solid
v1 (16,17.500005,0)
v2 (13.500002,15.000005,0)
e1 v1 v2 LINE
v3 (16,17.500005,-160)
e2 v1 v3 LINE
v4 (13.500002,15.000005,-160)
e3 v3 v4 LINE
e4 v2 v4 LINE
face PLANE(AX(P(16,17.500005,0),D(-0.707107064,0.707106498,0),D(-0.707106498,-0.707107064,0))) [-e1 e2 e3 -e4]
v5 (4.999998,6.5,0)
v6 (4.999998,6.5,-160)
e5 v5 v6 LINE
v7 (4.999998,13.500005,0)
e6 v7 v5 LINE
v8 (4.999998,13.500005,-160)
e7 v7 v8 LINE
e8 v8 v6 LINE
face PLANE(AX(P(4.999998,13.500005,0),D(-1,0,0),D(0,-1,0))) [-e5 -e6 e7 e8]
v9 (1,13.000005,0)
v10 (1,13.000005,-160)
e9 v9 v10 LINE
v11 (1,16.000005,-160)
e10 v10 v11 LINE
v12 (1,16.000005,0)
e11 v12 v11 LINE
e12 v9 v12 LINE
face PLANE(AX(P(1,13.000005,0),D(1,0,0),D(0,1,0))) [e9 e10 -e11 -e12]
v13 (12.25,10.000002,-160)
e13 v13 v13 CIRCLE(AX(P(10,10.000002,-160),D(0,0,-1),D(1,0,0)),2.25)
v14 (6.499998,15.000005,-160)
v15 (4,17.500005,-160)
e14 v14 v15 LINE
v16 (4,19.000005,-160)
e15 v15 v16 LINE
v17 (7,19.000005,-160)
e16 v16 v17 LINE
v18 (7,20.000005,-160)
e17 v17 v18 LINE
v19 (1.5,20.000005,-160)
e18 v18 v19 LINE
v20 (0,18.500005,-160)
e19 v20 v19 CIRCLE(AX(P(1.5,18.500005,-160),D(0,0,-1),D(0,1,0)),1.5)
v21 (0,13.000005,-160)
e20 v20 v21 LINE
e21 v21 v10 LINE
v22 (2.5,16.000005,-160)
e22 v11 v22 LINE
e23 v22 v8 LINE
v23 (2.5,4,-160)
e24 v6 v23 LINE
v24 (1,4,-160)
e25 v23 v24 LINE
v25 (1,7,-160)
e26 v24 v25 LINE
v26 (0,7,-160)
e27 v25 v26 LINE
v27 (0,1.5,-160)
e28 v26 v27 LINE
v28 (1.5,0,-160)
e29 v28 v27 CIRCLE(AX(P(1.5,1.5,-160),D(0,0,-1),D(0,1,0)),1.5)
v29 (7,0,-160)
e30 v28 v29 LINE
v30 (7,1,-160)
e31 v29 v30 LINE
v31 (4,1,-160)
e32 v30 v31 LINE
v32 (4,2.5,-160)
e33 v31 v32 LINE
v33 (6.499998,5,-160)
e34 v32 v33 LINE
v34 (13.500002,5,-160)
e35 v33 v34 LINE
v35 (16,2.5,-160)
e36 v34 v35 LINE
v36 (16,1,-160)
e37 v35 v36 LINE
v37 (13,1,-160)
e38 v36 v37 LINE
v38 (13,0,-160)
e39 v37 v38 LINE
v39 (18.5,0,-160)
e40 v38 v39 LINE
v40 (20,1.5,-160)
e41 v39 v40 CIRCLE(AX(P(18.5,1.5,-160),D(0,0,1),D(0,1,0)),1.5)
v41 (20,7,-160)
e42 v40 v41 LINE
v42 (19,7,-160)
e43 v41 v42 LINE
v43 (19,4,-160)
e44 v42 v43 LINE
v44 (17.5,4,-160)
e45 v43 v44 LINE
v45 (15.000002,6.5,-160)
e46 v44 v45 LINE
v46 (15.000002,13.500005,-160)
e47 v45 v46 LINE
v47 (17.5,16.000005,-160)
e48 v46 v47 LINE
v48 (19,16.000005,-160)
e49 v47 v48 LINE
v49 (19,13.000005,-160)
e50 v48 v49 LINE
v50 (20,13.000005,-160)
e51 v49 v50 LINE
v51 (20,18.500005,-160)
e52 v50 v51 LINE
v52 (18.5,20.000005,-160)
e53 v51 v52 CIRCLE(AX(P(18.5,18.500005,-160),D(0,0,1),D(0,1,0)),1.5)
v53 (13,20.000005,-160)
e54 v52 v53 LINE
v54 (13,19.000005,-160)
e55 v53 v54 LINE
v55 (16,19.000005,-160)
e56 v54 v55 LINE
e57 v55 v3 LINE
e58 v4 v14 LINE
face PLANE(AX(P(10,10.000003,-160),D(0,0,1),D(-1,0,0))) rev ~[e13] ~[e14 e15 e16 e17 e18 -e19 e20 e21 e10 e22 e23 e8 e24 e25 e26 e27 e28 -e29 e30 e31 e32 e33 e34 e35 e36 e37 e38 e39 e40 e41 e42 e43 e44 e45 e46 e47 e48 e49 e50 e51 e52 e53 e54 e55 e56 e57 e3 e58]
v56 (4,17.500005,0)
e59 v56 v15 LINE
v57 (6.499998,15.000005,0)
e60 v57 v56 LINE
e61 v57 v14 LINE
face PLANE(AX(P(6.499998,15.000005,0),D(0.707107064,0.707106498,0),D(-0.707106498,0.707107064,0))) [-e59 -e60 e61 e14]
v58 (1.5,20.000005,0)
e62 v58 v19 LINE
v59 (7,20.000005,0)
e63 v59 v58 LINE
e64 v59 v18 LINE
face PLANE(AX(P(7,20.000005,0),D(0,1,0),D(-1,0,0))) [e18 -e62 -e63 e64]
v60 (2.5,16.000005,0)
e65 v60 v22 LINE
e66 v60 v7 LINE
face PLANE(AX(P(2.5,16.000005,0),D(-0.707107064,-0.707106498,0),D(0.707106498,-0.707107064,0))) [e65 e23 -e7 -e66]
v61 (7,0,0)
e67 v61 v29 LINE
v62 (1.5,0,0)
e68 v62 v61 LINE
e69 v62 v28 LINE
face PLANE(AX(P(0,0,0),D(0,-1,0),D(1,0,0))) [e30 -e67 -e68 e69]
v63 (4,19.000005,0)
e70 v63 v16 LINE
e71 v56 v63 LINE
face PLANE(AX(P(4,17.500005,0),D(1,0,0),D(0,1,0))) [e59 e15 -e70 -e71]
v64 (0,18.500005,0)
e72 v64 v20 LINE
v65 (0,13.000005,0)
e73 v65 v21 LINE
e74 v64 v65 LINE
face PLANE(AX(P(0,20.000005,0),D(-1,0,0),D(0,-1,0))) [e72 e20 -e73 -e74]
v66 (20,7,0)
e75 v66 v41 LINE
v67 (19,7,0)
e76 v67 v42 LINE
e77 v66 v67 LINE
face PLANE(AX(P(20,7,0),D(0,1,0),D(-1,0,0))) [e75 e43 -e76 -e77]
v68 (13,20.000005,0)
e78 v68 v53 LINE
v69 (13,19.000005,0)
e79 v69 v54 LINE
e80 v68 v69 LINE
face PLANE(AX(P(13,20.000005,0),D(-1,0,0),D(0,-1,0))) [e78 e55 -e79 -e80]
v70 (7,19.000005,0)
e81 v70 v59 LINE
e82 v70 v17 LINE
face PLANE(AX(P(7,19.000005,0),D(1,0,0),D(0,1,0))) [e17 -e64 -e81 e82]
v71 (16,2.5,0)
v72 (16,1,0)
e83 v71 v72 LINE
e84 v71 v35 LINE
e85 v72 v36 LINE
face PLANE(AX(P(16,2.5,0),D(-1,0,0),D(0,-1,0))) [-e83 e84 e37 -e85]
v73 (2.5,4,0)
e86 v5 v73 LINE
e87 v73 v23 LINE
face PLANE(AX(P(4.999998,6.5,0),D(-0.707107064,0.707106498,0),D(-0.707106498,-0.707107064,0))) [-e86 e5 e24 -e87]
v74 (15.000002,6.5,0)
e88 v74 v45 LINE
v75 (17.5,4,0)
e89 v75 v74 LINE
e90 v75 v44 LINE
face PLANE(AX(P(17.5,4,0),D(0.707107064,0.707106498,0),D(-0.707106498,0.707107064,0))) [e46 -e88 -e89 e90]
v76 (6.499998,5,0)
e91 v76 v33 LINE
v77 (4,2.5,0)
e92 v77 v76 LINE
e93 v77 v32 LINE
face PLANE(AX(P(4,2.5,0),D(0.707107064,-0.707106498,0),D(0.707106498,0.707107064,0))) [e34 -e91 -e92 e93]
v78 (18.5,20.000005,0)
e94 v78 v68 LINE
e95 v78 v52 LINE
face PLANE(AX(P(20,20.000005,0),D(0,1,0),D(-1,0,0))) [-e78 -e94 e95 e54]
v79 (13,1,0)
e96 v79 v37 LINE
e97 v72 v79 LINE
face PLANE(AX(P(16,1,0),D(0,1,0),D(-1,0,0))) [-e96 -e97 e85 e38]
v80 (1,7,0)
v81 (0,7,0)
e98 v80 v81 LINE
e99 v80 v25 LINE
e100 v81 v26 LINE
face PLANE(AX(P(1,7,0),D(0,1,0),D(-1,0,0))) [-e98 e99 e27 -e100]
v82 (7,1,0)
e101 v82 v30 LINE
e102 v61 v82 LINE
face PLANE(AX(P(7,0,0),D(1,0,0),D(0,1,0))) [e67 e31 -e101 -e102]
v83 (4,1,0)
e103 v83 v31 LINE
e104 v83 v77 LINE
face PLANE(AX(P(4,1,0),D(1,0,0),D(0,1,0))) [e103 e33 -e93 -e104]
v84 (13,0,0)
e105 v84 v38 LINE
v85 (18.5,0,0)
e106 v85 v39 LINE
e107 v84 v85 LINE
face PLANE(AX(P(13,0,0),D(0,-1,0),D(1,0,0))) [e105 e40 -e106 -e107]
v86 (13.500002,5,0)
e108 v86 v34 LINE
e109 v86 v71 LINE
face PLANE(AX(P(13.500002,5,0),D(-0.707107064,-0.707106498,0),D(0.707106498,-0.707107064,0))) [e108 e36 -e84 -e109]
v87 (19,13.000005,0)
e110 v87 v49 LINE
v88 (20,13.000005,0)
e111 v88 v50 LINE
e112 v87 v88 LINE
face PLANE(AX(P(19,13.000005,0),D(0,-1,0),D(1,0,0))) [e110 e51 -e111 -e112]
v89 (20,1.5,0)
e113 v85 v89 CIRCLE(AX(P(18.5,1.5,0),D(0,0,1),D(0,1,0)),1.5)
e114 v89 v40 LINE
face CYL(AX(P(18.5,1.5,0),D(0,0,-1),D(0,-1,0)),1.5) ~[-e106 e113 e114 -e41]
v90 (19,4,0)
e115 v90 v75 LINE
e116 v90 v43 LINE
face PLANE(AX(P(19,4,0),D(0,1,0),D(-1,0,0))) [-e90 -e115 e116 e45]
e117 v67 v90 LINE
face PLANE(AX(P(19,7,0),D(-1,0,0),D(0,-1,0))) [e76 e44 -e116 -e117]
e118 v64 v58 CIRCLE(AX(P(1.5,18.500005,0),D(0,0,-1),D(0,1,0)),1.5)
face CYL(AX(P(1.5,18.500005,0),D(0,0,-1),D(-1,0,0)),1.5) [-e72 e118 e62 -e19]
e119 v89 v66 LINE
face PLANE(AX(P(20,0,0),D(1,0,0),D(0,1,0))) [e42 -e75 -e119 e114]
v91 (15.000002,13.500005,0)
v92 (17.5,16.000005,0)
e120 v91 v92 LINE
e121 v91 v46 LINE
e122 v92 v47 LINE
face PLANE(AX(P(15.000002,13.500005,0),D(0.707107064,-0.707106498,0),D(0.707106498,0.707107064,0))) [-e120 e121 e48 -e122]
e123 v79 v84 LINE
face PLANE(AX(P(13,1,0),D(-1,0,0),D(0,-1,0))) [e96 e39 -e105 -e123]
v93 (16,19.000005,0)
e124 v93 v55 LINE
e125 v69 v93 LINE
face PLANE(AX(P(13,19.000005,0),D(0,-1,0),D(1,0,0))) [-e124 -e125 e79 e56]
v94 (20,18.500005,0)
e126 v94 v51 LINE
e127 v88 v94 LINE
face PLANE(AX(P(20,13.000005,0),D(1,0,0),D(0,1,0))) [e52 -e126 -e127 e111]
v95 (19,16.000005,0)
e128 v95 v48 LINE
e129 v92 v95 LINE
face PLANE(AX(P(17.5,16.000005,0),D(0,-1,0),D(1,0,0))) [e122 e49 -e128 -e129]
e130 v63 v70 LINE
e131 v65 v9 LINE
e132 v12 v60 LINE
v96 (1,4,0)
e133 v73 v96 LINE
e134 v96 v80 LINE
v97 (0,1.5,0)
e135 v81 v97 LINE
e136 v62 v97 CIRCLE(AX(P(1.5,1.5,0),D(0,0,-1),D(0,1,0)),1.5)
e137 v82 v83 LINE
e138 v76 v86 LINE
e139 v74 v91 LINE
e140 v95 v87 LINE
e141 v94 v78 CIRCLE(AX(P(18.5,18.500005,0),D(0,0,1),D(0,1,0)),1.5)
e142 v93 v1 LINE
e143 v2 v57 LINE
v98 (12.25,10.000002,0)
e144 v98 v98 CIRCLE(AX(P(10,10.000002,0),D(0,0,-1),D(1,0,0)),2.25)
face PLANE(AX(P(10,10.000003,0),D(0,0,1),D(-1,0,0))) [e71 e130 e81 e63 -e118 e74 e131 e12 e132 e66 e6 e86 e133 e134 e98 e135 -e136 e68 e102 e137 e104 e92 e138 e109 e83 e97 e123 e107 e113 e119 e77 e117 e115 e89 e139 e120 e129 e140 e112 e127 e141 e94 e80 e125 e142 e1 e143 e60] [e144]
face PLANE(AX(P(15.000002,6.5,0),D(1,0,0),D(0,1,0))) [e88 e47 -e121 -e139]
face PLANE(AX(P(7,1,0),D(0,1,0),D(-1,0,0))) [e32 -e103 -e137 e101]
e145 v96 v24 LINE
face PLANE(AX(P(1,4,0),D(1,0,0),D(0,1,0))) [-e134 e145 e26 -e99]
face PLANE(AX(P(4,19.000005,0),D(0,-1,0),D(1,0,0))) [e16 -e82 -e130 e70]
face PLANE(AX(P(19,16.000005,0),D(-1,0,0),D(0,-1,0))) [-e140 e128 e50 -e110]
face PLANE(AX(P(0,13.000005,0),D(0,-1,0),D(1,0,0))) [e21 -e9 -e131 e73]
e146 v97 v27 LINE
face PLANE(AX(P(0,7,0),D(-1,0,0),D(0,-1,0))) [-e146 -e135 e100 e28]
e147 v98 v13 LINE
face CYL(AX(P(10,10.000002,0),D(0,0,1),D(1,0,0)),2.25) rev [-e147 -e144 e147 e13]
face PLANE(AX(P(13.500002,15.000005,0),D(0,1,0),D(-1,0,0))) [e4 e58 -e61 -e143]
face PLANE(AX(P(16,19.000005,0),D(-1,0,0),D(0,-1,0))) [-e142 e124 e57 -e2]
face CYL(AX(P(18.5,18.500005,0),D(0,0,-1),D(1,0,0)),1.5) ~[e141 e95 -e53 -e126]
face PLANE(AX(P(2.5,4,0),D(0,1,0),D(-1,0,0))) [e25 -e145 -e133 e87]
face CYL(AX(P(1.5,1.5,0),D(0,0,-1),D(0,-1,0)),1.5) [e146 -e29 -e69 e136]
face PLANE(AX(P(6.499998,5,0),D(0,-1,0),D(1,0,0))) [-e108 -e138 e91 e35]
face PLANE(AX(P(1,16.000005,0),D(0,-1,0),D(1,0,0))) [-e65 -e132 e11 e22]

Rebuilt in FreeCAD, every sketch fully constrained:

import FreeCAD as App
import Part
import Sketcher

V = App.Vector


def edges_at(feature, points):
    """Names of the edges that pass closest to the given points."""
    edges = feature.Shape.Edges
    near = lambda p: min(range(len(edges)), key=lambda i: edges[i].distToShape(Part.Vertex(*p))[0])
    return sorted({f"Edge{near(p) + 1}" for p in points})


def add_polygon(sketch, points):
    """Adds a closed chain of lines whose ends are joined by coincident constraints."""
    first, n = sketch.GeometryCount, len(points)
    for a, b in zip(points, points[1:] + points[:1]):
        sketch.addGeometry(Part.LineSegment(App.Vector(*a, 0), App.Vector(*b, 0)), False)
    for i in range(n):
        sketch.addConstraint(Sketcher.Constraint("Coincident", first + i, 2, first + (i + 1) % n, 1))

doc = App.newDocument("Part")
body = doc.addObject("PartDesign::Body", "Body")

# Sketch on XY plane
sketch1 = body.newObject("Sketcher::SketchObject", "Sketch")
sketch1.AttachmentSupport = (doc.getObject("XY_Plane"), [""])
sketch1.MapMode = "FlatFace"
add_polygon(sketch1, [(7, 1), (7, 0), (0, 0), (0, 7), (1, 7), (1, 4), (2.5, 4), (4.999998, 6.5), (4.999998, 13.500005), (2.5, 16.000005), (1, 16.000005), (1, 13.000005), (0, 13.000005), (0, 20.000005), (7, 20.000005), (7, 19.000005), (4, 19.000005), (4, 17.500005), (6.499998, 15.000005), (13.500002, 15.000005), (16, 17.500005), (16, 19.000005), (13, 19.000005), (13, 20.000005), (20, 20.000005), (20, 13.000005), (19, 13.000005), (19, 16.000005), (17.5, 16.000005), (15.000002, 13.500005), (15.000002, 6.5), (17.5, 4), (19, 4), (19, 7), (20, 7), (20, 0), (13, 0), (13, 1), (16, 1), (16, 2.5), (13.500002, 5), (6.499998, 5), (4, 2.5), (4, 1)])  # lines 0-43
sketch1.addGeometry(Part.Circle(V(10, 10.000002, 0), V(0, 0, 1), 2.25), False)  # 44
sketch1.addConstraint([
    Sketcher.Constraint("Vertical", 0),
    Sketcher.Constraint("Horizontal", 1),
    Sketcher.Constraint("Vertical", 2),
    Sketcher.Constraint("Horizontal", 3),
    Sketcher.Constraint("Vertical", 4),
    Sketcher.Constraint("Horizontal", 5),
    Sketcher.Constraint("Vertical", 7),
    Sketcher.Constraint("Horizontal", 9),
    Sketcher.Constraint("Vertical", 10),
    Sketcher.Constraint("Horizontal", 11),
    Sketcher.Constraint("Vertical", 12),
    Sketcher.Constraint("Horizontal", 13),
    Sketcher.Constraint("Vertical", 14),
    Sketcher.Constraint("Horizontal", 15),
    Sketcher.Constraint("Vertical", 16),
    Sketcher.Constraint("Horizontal", 18),
    Sketcher.Constraint("Vertical", 20),
    Sketcher.Constraint("Horizontal", 21),
    Sketcher.Constraint("Vertical", 22),
    Sketcher.Constraint("Horizontal", 23),
    Sketcher.Constraint("Vertical", 24),
    Sketcher.Constraint("Horizontal", 25),
    Sketcher.Constraint("Vertical", 26),
    Sketcher.Constraint("Horizontal", 27),
    Sketcher.Constraint("Vertical", 29),
    Sketcher.Constraint("Horizontal", 31),
    Sketcher.Constraint("Vertical", 32),
    Sketcher.Constraint("Horizontal", 33),
    Sketcher.Constraint("Vertical", 34),
    Sketcher.Constraint("Horizontal", 35),
    Sketcher.Constraint("Vertical", 36),
    Sketcher.Constraint("Horizontal", 37),
    Sketcher.Constraint("Vertical", 38),
    Sketcher.Constraint("Horizontal", 40),
    Sketcher.Constraint("Vertical", 42),
    Sketcher.Constraint("Horizontal", 43),
    Sketcher.Constraint("Coincident", 1, 2, -1, 1),
    Sketcher.Constraint("PointOnObject", 11, 2, -2),
    Sketcher.Constraint("PointOnObject", 34, 2, -1),
    Sketcher.Constraint("Perpendicular", 6, 8),
    Sketcher.Constraint("Parallel", 8, 17),
    Sketcher.Constraint("Perpendicular", 17, 19),
    Sketcher.Constraint("Parallel", 19, 28),
    Sketcher.Constraint("Perpendicular", 28, 30),
    Sketcher.Constraint("Parallel", 30, 39),
    Sketcher.Constraint("Perpendicular", 39, 41),
    Sketcher.Constraint("Horizontal", 16, 2, 19, 2),
    Sketcher.Constraint("Horizontal", 15, 2, 20, 2),
    Sketcher.Constraint("Horizontal", 13, 2, 22, 2),
    Sketcher.Constraint("Horizontal", 11, 2, 24, 2),
    Sketcher.Constraint("Horizontal", 9, 2, 26, 2),
    Sketcher.Constraint("Horizontal", 7, 2, 28, 2),
    Sketcher.Constraint("Horizontal", 6, 2, 29, 2),
    Sketcher.Constraint("Horizontal", 5, 2, 30, 2),
    Sketcher.Constraint("Horizontal", 3, 2, 32, 2),
    Sketcher.Constraint("Horizontal", 38, 2, 41, 2),
    Sketcher.Constraint("Horizontal", 37, 2, 42, 2),
    Sketcher.Constraint("Vertical", 5, 2, 8, 2),
    Sketcher.Constraint("Vertical", 4, 2, 9, 2),
    Sketcher.Constraint("Vertical", 0, 2, 13, 2),
    Sketcher.Constraint("Vertical", 27, 2, 30, 2),
    Sketcher.Constraint("Vertical", 26, 2, 31, 2),
    Sketcher.Constraint("Vertical", 24, 2, 33, 2),
    Sketcher.Constraint("Vertical", 22, 2, 35, 2),
    Sketcher.Constraint("Vertical", 20, 2, 37, 2),
    Sketcher.Constraint("Vertical", 18, 2, 39, 2),
    Sketcher.Constraint("Vertical", 17, 2, 40, 2),
    Sketcher.Constraint("Equal", 15, 21),
    Sketcher.Constraint("Equal", 13, 23),
    Sketcher.Constraint("Equal", 11, 25),
    Sketcher.Constraint("Equal", 9, 27),
    Sketcher.Constraint("Equal", 33, 0),
    Sketcher.Constraint("Equal", 35, 2),
    Sketcher.Constraint("Equal", 43, 4),
    Sketcher.Constraint("Equal", 40, 7),
    Sketcher.Constraint("Equal", 4, 10),
    Sketcher.Constraint("Equal", 2, 12),
    Sketcher.Constraint("Equal", 0, 14),
    Sketcher.Constraint("Equal", 31, 16),
    Sketcher.Constraint("Equal", 20, 38),
    Sketcher.Constraint("Equal", 8, 17),
    Sketcher.Constraint("Diameter", 44, 4.5),
    Sketcher.Constraint("DistanceX", 1, 2, 1, 1, 7.0),
    Sketcher.Constraint("DistanceX", 3, 1, 3, 2, 1.0),
    Sketcher.Constraint("DistanceX", 15, 2, 15, 1, 3.0),
    Sketcher.Constraint("DistanceX", 5, 1, 5, 2, 1.5),
    Sketcher.Constraint("DistanceX", -1, 1, 44, 3, 10.0),
    Sketcher.Constraint("DistanceX", -1, 1, 19, 2, 16.0),
    Sketcher.Constraint("DistanceY", -1, 1, 39, 2, 5.0),
    Sketcher.Constraint("DistanceY", -1, 1, 44, 3, 10.000002),
])
pad1 = body.newObject("PartDesign::Pad", "Pad")
pad1.Profile = sketch1
pad1.Length = 160
pad1.Reversed = True
doc.recompute()

fillet = body.newObject("PartDesign::Fillet", "Fillet")
fillet.Base = (pad1, edges_at(pad1, [
    (20, 20, -80),
    (20, 0, -80),
    (0, 20, -80),
    (0, 0, -80),
]))
fillet.Radius = 1.5

doc.recompute()
